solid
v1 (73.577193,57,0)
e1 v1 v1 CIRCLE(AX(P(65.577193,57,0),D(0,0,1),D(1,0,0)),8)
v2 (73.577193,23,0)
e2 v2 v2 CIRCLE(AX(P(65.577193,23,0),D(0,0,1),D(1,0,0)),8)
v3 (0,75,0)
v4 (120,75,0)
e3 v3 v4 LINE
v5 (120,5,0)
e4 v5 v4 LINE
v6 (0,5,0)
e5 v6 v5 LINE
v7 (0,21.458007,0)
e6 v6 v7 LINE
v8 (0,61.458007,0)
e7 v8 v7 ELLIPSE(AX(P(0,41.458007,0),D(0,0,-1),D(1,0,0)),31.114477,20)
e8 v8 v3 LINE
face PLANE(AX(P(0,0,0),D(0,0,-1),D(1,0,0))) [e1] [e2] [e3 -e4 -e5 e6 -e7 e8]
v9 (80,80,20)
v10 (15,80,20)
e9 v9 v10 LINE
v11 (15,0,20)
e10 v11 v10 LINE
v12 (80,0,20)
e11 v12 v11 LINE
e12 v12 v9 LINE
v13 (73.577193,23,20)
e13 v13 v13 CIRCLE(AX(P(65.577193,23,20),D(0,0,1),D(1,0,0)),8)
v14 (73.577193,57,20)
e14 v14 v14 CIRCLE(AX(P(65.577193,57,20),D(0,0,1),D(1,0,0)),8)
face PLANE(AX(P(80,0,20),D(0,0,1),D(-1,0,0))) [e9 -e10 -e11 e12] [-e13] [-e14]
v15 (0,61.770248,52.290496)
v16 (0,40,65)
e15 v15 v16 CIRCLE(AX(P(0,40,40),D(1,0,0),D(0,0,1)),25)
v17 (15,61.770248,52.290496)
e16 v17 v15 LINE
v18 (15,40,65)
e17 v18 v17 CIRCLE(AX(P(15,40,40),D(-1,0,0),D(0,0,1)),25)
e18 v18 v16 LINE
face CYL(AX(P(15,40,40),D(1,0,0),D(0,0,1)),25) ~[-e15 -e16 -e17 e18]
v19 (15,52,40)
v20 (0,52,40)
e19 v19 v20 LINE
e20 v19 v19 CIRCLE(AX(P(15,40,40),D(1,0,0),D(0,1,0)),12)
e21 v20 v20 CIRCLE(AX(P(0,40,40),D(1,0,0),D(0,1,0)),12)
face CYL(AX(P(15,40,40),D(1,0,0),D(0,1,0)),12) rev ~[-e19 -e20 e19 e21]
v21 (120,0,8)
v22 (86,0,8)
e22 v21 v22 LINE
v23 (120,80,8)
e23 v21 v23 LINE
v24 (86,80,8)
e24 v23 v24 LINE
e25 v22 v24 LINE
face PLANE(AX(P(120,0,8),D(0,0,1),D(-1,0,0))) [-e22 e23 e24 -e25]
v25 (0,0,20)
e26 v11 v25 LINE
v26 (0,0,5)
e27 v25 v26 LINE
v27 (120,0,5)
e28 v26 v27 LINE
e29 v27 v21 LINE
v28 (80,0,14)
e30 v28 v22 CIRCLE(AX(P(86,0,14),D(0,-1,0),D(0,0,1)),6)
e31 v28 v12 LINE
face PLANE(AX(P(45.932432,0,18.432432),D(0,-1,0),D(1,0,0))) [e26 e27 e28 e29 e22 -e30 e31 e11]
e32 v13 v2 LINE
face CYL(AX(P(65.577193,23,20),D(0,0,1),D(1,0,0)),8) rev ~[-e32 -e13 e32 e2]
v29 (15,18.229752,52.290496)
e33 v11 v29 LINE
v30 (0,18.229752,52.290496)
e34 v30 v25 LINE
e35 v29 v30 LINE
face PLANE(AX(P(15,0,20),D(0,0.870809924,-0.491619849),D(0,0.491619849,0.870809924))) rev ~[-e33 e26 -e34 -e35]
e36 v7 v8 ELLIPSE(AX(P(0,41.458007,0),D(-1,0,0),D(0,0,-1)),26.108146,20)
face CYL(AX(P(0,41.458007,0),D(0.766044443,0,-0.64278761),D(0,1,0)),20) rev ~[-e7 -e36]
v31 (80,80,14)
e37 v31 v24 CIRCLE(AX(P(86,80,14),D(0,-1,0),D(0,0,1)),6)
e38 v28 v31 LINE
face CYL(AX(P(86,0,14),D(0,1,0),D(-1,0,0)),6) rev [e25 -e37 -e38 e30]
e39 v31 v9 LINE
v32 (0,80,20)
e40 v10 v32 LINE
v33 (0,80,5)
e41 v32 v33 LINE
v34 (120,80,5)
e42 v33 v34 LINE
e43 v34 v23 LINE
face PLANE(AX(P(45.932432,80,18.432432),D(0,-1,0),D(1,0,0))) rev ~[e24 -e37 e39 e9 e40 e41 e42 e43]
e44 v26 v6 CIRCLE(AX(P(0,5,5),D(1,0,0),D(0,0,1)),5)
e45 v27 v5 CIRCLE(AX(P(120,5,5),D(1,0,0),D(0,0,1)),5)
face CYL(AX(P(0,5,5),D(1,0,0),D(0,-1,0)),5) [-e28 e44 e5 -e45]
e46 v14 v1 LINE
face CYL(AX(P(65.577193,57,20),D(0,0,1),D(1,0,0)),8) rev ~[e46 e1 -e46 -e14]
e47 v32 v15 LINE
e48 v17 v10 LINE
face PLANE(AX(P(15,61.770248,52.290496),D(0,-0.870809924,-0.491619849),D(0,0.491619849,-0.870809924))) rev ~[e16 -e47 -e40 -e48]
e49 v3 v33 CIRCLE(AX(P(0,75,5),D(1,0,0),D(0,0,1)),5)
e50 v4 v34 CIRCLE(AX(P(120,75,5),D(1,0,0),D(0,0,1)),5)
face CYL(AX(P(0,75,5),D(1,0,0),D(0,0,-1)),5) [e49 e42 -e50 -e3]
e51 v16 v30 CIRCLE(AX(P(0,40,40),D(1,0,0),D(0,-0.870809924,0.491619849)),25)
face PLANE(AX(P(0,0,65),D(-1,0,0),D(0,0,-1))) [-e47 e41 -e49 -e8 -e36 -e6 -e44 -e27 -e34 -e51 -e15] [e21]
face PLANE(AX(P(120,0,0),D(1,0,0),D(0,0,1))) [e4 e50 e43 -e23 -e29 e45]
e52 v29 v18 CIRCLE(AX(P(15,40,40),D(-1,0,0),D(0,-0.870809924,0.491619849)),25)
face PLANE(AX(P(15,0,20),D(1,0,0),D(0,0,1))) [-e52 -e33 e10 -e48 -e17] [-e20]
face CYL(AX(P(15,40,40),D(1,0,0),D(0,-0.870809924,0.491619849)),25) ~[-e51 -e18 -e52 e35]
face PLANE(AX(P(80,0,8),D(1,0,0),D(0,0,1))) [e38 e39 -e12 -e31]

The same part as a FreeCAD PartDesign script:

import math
import FreeCAD as App
import Part
import Sketcher
from FreeCAD import Vector
Q = App.Units.Quantity


def edges_at(feature, points):
    """Names of the edges that pass closest to the given points."""
    edges = feature.Shape.Edges
    near = lambda p: min(range(len(edges)), key=lambda i: edges[i].distToShape(Part.Vertex(*p))[0])
    return sorted({f"Edge{near(p) + 1}" for p in points})

doc = App.newDocument("Part")
body = doc.addObject("PartDesign::Body", "Body")

sketch1 = body.newObject("Sketcher::SketchObject", "Sketch")
sketch1.AttachmentSupport = (doc.getObject("XZ_Plane"), [""])
sketch1.MapMode = "FlatFace"
sketch1.addGeometry(Part.LineSegment(Vector(0, 65, 0), Vector(0, 0, 0)), False)
sketch1.addGeometry(Part.LineSegment(Vector(0, 0, 0), Vector(120, 0, 0)), False)
sketch1.addGeometry(Part.LineSegment(Vector(120, 0, 0), Vector(120, 8, 0)), False)
sketch1.addGeometry(Part.LineSegment(Vector(120, 8, 0), Vector(80, 8, 0)), False)
sketch1.addGeometry(Part.LineSegment(Vector(80, 8, 0), Vector(80, 20, 0)), False)
sketch1.addGeometry(Part.LineSegment(Vector(80, 20, 0), Vector(15, 20, 0)), False)
sketch1.addGeometry(Part.LineSegment(Vector(15, 20, 0), Vector(15, 65, 0)), False)
sketch1.addGeometry(Part.LineSegment(Vector(15, 65, 0), Vector(0, 65, 0)), False)
sketch1.addConstraint(Sketcher.Constraint("Coincident", 0, 2, 1, 1))
sketch1.addConstraint(Sketcher.Constraint("Coincident", 1, 2, 2, 1))
sketch1.addConstraint(Sketcher.Constraint("Coincident", 2, 2, 3, 1))
sketch1.addConstraint(Sketcher.Constraint("Coincident", 3, 2, 4, 1))
sketch1.addConstraint(Sketcher.Constraint("Coincident", 4, 2, 5, 1))
sketch1.addConstraint(Sketcher.Constraint("Coincident", 5, 2, 6, 1))
sketch1.addConstraint(Sketcher.Constraint("Coincident", 6, 2, 7, 1))
sketch1.addConstraint(Sketcher.Constraint("Coincident", 7, 2, 0, 1))
sketch1.addConstraint(Sketcher.Constraint("Vertical", 0))
sketch1.addConstraint(Sketcher.Constraint("Horizontal", 1))
sketch1.addConstraint(Sketcher.Constraint("Vertical", 2))
sketch1.addConstraint(Sketcher.Constraint("Horizontal", 3))
sketch1.addConstraint(Sketcher.Constraint("Vertical", 4))
sketch1.addConstraint(Sketcher.Constraint("Horizontal", 5))
sketch1.addConstraint(Sketcher.Constraint("Vertical", 6))
sketch1.addConstraint(Sketcher.Constraint("Horizontal", 7))
sketch1.addConstraint(Sketcher.Constraint("Coincident", 0, 2, -1, 1))
sketch1.addConstraint(Sketcher.Constraint("Equal", 5, 0))
sketch1.addConstraint(Sketcher.Constraint("DistanceX", 1, 1, 1, 2, Q("120 mm")))
sketch1.addConstraint(Sketcher.Constraint("DistanceX", 3, 2, 3, 1, Q("40 mm")))
sketch1.addConstraint(Sketcher.Constraint("DistanceX", 5, 2, 5, 1, Q("65 mm")))
sketch1.addConstraint(Sketcher.Constraint("DistanceY", 2, 1, 2, 2, Q("8 mm")))
sketch1.addConstraint(Sketcher.Constraint("DistanceY", 4, 1, 4, 2, Q("12 mm")))
pad1 = body.newObject("PartDesign::Pad", "Pad")
pad1.Profile = sketch1
pad1.Length = 80
pad1.Reversed = True

sketch2 = body.newObject("Sketcher::SketchObject", "Sketch001")
sketch2.AttachmentSupport = (doc.getObject("YZ_Plane"), [""])
sketch2.MapMode = "FlatFace"
sketch2.AttachmentOffset = App.Placement(Vector(0, 0, 15), App.Rotation())
sketch2.addGeometry(Part.LineSegment(Vector(0, 65, 0), Vector(0, 20, 0)), False)
sketch2.addGeometry(Part.LineSegment(Vector(0, 20, 0), Vector(18, 52, 0)), False)
sketch2.addGeometry(Part.ArcOfCircle(Part.Circle(Vector(40, 40, 0), Vector(0, 0, 1), 25), math.radians(90), math.radians(151)), False)
sketch2.addGeometry(Part.LineSegment(Vector(40, 65, 0), Vector(0, 65, 0)), False)
sketch2.addGeometry(Part.LineSegment(Vector(62, 52, 0), Vector(80, 20, 0)), False)
sketch2.addGeometry(Part.LineSegment(Vector(80, 20, 0), Vector(80, 65, 0)), False)
sketch2.addGeometry(Part.LineSegment(Vector(80, 65, 0), Vector(40, 65, 0)), False)
sketch2.addGeometry(Part.ArcOfCircle(Part.Circle(Vector(40, 40, 0), Vector(0, 0, 1), 25), math.radians(29), math.radians(90)), False)
sketch2.addGeometry(Part.Circle(Vector(40, 40, 0), Vector(0, 0, 1), 12), False)
sketch2.addConstraint(Sketcher.Constraint("Coincident", 0, 2, 1, 1))
sketch2.addConstraint(Sketcher.Constraint("Tangent", 1, 2, 2, 2))
sketch2.addConstraint(Sketcher.Constraint("Tangent", 2, 1, 3, 1))
sketch2.addConstraint(Sketcher.Constraint("Coincident", 3, 2, 0, 1))
sketch2.addConstraint(Sketcher.Constraint("Coincident", 4, 2, 5, 1))
sketch2.addConstraint(Sketcher.Constraint("Coincident", 5, 2, 6, 1))
sketch2.addConstraint(Sketcher.Constraint("Tangent", 6, 2, 7, 2))
sketch2.addConstraint(Sketcher.Constraint("Tangent", 7, 1, 4, 1))
sketch2.addConstraint(Sketcher.Constraint("Vertical", 0))
sketch2.addConstraint(Sketcher.Constraint("Horizontal", 3))
sketch2.addConstraint(Sketcher.Constraint("Vertical", 5))
sketch2.addConstraint(Sketcher.Constraint("Horizontal", 6))
sketch2.addConstraint(Sketcher.Constraint("Coincident", 7, 3, 2, 3))
sketch2.addConstraint(Sketcher.Constraint("Coincident", 8, 3, 2, 3))
sketch2.addConstraint(Sketcher.Constraint("Equal", 2, 7))
sketch2.addConstraint(Sketcher.Constraint("PointOnObject", 0, 2, -2))
sketch2.addConstraint(Sketcher.Constraint("Horizontal", 0, 2, 4, 2))
sketch2.addConstraint(Sketcher.Constraint("Horizontal", 1, 2, 7, 1))
sketch2.addConstraint(Sketcher.Constraint("Diameter", 8, Q("24 mm")))
sketch2.addConstraint(Sketcher.Constraint("Radius", 2, Q("25 mm")))
sketch2.addConstraint(Sketcher.Constraint("DistanceX", 3, 2, 3, 1, Q("40 mm")))
sketch2.addConstraint(Sketcher.Constraint("DistanceY", 0, 2, 0, 1, Q("45 mm")))
sketch2.addConstraint(Sketcher.Constraint("DistanceY", -1, 1, 2, 3, Q("40 mm")))
pocket1 = body.newObject("PartDesign::Pocket", "Pocket")
pocket1.Profile = sketch2
pocket1.Length = 25

sketch3 = body.newObject("Sketcher::SketchObject", "Sketch002")
sketch3.Placement = App.Placement(Vector(0, 0, 0), App.Rotation(Vector(0, 1, 0), Vector(0.64278761, 0, 0.766044443), Vector(0.766044443, 0, -0.64278761), "ZXY"))
sketch3.addGeometry(Part.Circle(Vector(41, 0, 0), Vector(0, 0, 1), 20), False)
sketch3.addConstraint(Sketcher.Constraint("PointOnObject", 0, 3, -1))
sketch3.addConstraint(Sketcher.Constraint("Diameter", 0, Q("40 mm")))
sketch3.addConstraint(Sketcher.Constraint("DistanceX", -1, 1, 0, 3, Q("41.458007 mm")))
pocket2 = body.newObject("PartDesign::Pocket", "Pocket001")
pocket2.Profile = sketch3
pocket2.Length = 100
pocket2.Midplane = True
doc.recompute()

fillet = body.newObject("PartDesign::Fillet", "Fillet")
fillet.Base = (pocket2, edges_at(pocket2, [(80, 40, 8)]))
fillet.Radius = 6
doc.recompute()

fillet2 = body.newObject("PartDesign::Fillet", "Fillet001")
fillet2.Base = (fillet, edges_at(fillet, [(60, 0, 0), (60, 80, 0)]))
fillet2.Radius = 5

sketch4 = body.newObject("Sketcher::SketchObject", "Sketch003")
sketch4.AttachmentSupport = (doc.getObject("XY_Plane"), [""])
sketch4.MapMode = "FlatFace"
sketch4.AttachmentOffset = App.Placement(Vector(0, 0, 20), App.Rotation())
sketch4.addGeometry(Part.Circle(Vector(66, 57, 0), Vector(0, 0, 1), 8), False)
sketch4.addGeometry(Part.Circle(Vector(66, 23, 0), Vector(0, 0, 1), 8), False)
sketch4.addConstraint(Sketcher.Constraint("Equal", 0, 1))
sketch4.addConstraint(Sketcher.Constraint("Vertical", 0, 3, 1, 3))
sketch4.addConstraint(Sketcher.Constraint("Diameter", 0, Q("16 mm")))
sketch4.addConstraint(Sketcher.Constraint("DistanceY", -1, 1, 0, 3, Q("57 mm")))
sketch4.addConstraint(Sketcher.Constraint("DistanceY", -1, 1, 1, 3, Q("23 mm")))
sketch4.addConstraint(Sketcher.Constraint("DistanceX", -1, 1, 0, 3, Q("65.577193 mm")))
pocket3 = body.newObject("PartDesign::Pocket", "Pocket002")
pocket3.Profile = sketch4
pocket3.Type = "ThroughAll"

doc.recompute()
